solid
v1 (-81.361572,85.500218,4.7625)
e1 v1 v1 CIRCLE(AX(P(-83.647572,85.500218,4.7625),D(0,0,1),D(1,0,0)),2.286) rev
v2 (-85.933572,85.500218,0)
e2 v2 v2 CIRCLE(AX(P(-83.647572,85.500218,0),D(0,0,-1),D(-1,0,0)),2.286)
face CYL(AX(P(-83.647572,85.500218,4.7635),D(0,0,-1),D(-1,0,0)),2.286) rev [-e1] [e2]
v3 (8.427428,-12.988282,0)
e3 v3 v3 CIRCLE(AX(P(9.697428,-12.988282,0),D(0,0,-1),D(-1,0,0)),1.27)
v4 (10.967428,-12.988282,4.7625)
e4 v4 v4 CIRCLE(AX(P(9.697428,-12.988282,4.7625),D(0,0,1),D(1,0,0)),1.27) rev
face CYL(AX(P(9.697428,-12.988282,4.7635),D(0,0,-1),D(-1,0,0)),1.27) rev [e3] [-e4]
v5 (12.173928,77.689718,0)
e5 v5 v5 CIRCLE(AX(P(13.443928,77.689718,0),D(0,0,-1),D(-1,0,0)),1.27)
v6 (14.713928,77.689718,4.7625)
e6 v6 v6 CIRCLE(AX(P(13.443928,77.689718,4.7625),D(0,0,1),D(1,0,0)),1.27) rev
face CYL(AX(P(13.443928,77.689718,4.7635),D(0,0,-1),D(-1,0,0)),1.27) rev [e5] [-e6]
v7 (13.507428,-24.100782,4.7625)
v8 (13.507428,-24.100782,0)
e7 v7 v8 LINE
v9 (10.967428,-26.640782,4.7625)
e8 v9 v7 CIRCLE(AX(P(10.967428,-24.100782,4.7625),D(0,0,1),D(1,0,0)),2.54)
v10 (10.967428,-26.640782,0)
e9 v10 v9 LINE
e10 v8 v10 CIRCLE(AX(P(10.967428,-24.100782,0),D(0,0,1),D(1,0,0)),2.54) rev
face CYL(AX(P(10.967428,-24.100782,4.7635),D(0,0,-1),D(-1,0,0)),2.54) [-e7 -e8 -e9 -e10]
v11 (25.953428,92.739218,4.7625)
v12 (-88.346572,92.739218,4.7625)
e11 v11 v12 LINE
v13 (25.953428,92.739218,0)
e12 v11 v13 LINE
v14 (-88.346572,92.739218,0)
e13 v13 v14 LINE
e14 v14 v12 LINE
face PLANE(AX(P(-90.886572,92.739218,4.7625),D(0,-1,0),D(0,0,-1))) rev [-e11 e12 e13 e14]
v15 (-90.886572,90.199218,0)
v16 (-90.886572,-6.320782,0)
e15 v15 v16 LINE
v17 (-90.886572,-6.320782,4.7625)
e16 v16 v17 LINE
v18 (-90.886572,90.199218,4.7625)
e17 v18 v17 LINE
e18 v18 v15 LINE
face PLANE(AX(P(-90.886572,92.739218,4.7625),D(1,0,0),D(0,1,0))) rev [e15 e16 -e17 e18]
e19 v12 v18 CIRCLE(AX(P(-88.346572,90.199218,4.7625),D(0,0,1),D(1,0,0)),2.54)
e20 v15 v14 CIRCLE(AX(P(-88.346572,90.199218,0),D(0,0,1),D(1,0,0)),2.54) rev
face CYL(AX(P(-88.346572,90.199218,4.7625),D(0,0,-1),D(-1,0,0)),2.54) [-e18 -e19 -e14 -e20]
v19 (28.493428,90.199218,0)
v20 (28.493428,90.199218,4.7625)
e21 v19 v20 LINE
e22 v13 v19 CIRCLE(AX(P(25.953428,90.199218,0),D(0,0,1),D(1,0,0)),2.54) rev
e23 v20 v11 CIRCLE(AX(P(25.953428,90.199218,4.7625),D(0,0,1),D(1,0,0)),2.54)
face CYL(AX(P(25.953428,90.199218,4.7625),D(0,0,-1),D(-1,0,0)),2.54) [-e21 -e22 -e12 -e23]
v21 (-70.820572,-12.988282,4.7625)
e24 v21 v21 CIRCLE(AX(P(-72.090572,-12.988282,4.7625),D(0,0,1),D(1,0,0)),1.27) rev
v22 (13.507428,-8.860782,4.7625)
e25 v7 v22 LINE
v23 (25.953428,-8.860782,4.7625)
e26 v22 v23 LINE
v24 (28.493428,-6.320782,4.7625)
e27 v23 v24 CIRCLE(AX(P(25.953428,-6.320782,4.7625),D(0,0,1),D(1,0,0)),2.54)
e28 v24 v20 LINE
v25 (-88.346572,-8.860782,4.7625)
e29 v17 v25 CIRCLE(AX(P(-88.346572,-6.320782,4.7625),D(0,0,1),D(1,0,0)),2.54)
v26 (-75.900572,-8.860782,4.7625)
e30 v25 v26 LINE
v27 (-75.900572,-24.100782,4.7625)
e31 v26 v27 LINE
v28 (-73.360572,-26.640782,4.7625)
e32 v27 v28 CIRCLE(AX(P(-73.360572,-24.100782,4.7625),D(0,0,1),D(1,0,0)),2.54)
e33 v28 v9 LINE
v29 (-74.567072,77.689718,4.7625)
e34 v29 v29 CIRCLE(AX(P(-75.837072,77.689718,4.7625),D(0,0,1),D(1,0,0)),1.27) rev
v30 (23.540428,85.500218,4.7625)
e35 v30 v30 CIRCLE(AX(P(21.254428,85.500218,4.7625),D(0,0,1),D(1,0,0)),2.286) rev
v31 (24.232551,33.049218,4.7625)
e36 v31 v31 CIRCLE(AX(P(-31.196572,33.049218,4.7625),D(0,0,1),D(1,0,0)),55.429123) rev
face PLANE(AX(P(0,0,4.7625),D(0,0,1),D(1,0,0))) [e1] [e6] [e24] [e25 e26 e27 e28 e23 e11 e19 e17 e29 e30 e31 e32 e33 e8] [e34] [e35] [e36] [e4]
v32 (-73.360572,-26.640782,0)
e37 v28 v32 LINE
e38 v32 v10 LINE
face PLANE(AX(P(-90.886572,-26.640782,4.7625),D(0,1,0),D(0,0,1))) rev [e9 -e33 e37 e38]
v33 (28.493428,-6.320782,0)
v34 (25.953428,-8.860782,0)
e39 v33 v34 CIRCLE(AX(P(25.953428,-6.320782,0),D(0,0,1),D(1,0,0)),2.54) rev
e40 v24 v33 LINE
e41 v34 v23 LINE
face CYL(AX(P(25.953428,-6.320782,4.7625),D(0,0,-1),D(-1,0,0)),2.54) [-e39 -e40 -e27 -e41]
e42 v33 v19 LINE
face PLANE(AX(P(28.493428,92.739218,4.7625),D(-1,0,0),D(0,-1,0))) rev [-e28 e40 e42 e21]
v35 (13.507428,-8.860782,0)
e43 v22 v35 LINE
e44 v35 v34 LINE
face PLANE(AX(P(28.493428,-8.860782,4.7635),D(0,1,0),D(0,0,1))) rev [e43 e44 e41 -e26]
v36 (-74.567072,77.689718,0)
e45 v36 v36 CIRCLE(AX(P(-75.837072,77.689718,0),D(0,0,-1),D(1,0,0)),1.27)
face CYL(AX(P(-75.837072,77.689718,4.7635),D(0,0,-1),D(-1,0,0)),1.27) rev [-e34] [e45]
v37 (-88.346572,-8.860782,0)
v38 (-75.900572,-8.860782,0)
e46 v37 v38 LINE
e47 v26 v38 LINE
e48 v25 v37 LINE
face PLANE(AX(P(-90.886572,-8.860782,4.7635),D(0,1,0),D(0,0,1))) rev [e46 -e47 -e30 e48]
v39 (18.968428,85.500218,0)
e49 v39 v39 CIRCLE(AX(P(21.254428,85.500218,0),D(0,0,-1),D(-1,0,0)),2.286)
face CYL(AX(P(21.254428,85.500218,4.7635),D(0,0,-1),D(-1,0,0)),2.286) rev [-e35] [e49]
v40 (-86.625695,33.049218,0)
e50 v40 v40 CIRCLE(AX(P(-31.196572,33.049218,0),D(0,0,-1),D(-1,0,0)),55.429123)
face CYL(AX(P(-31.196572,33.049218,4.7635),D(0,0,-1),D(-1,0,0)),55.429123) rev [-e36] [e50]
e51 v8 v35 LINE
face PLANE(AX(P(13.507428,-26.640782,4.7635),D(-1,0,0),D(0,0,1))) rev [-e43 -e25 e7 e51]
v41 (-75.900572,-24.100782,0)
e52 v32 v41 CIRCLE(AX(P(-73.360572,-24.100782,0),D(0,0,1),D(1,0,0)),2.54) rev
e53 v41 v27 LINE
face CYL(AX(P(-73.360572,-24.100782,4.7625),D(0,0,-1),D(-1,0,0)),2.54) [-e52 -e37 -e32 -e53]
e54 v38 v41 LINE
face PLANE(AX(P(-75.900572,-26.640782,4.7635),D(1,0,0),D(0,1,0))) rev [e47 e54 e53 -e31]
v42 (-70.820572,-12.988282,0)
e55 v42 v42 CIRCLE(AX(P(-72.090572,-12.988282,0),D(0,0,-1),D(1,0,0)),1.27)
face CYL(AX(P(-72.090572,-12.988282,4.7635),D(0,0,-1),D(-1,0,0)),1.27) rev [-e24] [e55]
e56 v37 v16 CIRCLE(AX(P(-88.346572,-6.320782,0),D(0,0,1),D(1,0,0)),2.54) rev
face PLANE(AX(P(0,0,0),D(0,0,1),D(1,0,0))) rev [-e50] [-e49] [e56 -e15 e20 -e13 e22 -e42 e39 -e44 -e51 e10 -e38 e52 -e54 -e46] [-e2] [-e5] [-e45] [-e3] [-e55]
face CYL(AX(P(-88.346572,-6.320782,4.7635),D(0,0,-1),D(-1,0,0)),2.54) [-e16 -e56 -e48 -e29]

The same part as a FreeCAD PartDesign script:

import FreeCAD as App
import Part
import Sketcher

V = App.Vector
Q = App.Units.Quantity


def edges_at(feature, points):
    """Names of the edges that pass closest to the given points."""
    edges = feature.Shape.Edges
    near = lambda p: min(range(len(edges)), key=lambda i: edges[i].distToShape(Part.Vertex(*p))[0])
    return sorted({f"Edge{near(p) + 1}" for p in points})

doc = App.newDocument("Part")
body = doc.addObject("PartDesign::Body", "Body")

# Sketch on XY plane
sketch1 = body.newObject("Sketcher::SketchObject", "Sketch")
sketch1.AttachmentSupport = (doc.getObject("XY_Plane"), [""])
sketch1.MapMode = "FlatFace"
sketch1.addGeometry([
    Part.LineSegment(V(-91, 93, 0), V(-91, -27, 0)),
    Part.LineSegment(V(-91, -27, 0), V(28, -27, 0)),
    Part.LineSegment(V(28, -27, 0), V(28, 93, 0)),
    Part.LineSegment(V(28, 93, 0), V(-91, 93, 0)),
], False)
sketch1.addConstraint([
    Sketcher.Constraint("Coincident", 0, 2, 1, 1),
    Sketcher.Constraint("Coincident", 1, 2, 2, 1),
    Sketcher.Constraint("Coincident", 2, 2, 3, 1),
    Sketcher.Constraint("Coincident", 3, 2, 0, 1),
    Sketcher.Constraint("Vertical", 0),
    Sketcher.Constraint("Horizontal", 1),
    Sketcher.Constraint("Vertical", 2),
    Sketcher.Constraint("Horizontal", 3),
    Sketcher.Constraint("Equal", 3, 0),
    Sketcher.Constraint("DistanceX", 1, 1, 1, 2, Q("4.7 in")),
    Sketcher.Constraint("DistanceX", 0, 2, -1, 1, 90.886572),
    Sketcher.Constraint("DistanceY", 0, 2, -1, 1, 26.640782),
])
pad1 = body.newObject("PartDesign::Pad", "Pad")
pad1.Profile = sketch1
pad1.Length = Q("0.1875 in")

# Sketch on XY plane
sketch2 = body.newObject("Sketcher::SketchObject", "Sketch001")
sketch2.AttachmentSupport = (doc.getObject("XY_Plane"), [""])
sketch2.MapMode = "FlatFace"
sketch2.addGeometry(Part.Circle(V(21.3, 85.5, 0), V(0, 0, 1), 2.3), False)
sketch2.addConstraint([
    Sketcher.Constraint("Diameter", 0, Q("0.18 in")),
    Sketcher.Constraint("DistanceX", -1, 1, 0, 3, 21.254428),
    Sketcher.Constraint("DistanceY", -1, 1, 0, 3, 85.500218),
])
pocket1 = body.newObject("PartDesign::Pocket", "Pocket")
pocket1.Profile = sketch2
pocket1.Type = "UpToFirst"
pocket1.Reversed = True

# Sketch on XY plane
sketch3 = body.newObject("Sketcher::SketchObject", "Sketch002")
sketch3.AttachmentSupport = (doc.getObject("XY_Plane"), [""])
sketch3.MapMode = "FlatFace"
sketch3.addGeometry(Part.Circle(V(-83.6, 85.5, 0), V(0, 0, 1), 2.3), False)
sketch3.addConstraint([
    Sketcher.Constraint("Diameter", 0, Q("0.18 in")),
    Sketcher.Constraint("DistanceX", 0, 3, -1, 1, 83.647572),
    Sketcher.Constraint("DistanceY", -1, 1, 0, 3, 85.500218),
])
pocket2 = body.newObject("PartDesign::Pocket", "Pocket001")
pocket2.Profile = sketch3
pocket2.Type = "UpToFirst"
pocket2.Reversed = True

# Sketch on XY plane
sketch4 = body.newObject("Sketcher::SketchObject", "Sketch003")
sketch4.AttachmentSupport = (doc.getObject("XY_Plane"), [""])
sketch4.MapMode = "FlatFace"
sketch4.addGeometry(Part.Circle(V(-72.1, -13, 0), V(0, 0, 1), 1.3), False)
sketch4.addConstraint([
    Sketcher.Constraint("Diameter", 0, Q("0.1 in")),
    Sketcher.Constraint("DistanceX", 0, 3, -1, 1, 72.090572),
    Sketcher.Constraint("DistanceY", 0, 3, -1, 1, 12.988282),
])
pocket3 = body.newObject("PartDesign::Pocket", "Pocket002")
pocket3.Profile = sketch4
pocket3.Type = "UpToFirst"
pocket3.Reversed = True

# Sketch on XY plane
sketch5 = body.newObject("Sketcher::SketchObject", "Sketch004")
sketch5.AttachmentSupport = (doc.getObject("XY_Plane"), [""])
sketch5.MapMode = "FlatFace"
sketch5.addGeometry(Part.Circle(V(-31, 33, 0), V(0, 0, 1), 55), False)
sketch5.addConstraint([
    Sketcher.Constraint("Diameter", 0, 110.858245),
    Sketcher.Constraint("DistanceX", 0, 3, -1, 1, 31.196572),
    Sketcher.Constraint("DistanceY", -1, 1, 0, 3, 33.049218),
])
pocket4 = body.newObject("PartDesign::Pocket", "Pocket003")
pocket4.Profile = sketch5
pocket4.Type = "UpToFirst"
pocket4.Reversed = True

# Sketch on XY plane
sketch6 = body.newObject("Sketcher::SketchObject", "Sketch005")
sketch6.AttachmentSupport = (doc.getObject("XY_Plane"), [""])
sketch6.MapMode = "FlatFace"
sketch6.addGeometry(Part.Circle(V(13.4, 77.7, 0), V(0, 0, 1), 1.3), False)
sketch6.addConstraint([
    Sketcher.Constraint("Diameter", 0, Q("0.1 in")),
    Sketcher.Constraint("DistanceX", -1, 1, 0, 3, 13.443928),
    Sketcher.Constraint("DistanceY", -1, 1, 0, 3, 77.689718),
])
pocket5 = body.newObject("PartDesign::Pocket", "Pocket004")
pocket5.Profile = sketch6
pocket5.Type = "UpToFirst"
pocket5.Reversed = True

# Sketch on XY plane
sketch7 = body.newObject("Sketcher::SketchObject", "Sketch006")
sketch7.AttachmentSupport = (doc.getObject("XY_Plane"), [""])
sketch7.MapMode = "FlatFace"
sketch7.addGeometry(Part.Circle(V(-75.8, 77.7, 0), V(0, 0, 1), 1.3), False)
sketch7.addConstraint([
    Sketcher.Constraint("Diameter", 0, Q("0.1 in")),
    Sketcher.Constraint("DistanceX", 0, 3, -1, 1, 75.837072),
    Sketcher.Constraint("DistanceY", -1, 1, 0, 3, 77.689718),
])
pocket6 = body.newObject("PartDesign::Pocket", "Pocket005")
pocket6.Profile = sketch7
pocket6.Type = "UpToFirst"
pocket6.Reversed = True

# Sketch on XY plane
sketch8 = body.newObject("Sketcher::SketchObject", "Sketch007")
sketch8.AttachmentSupport = (doc.getObject("XY_Plane"), [""])
sketch8.MapMode = "FlatFace"
sketch8.addGeometry(Part.Circle(V(9.7, -13, 0), V(0, 0, 1), 1.3), False)
sketch8.addConstraint([
    Sketcher.Constraint("Diameter", 0, Q("0.1 in")),
    Sketcher.Constraint("DistanceX", -1, 1, 0, 3, 9.697428),
    Sketcher.Constraint("DistanceY", 0, 3, -1, 1, 12.988282),
])
pocket7 = body.newObject("PartDesign::Pocket", "Pocket006")
pocket7.Profile = sketch8
pocket7.Type = "UpToFirst"
pocket7.Reversed = True

# Sketch on XY plane
sketch9 = body.newObject("Sketcher::SketchObject", "Sketch008")
sketch9.AttachmentSupport = (doc.getObject("XY_Plane"), [""])
sketch9.MapMode = "FlatFace"
sketch9.addGeometry([
    Part.LineSegment(V(28, -9, 0), V(28, -27, 0)),
    Part.LineSegment(V(28, -27, 0), V(14, -27, 0)),
    Part.LineSegment(V(14, -27, 0), V(14, -9, 0)),
    Part.LineSegment(V(14, -9, 0), V(28, -9, 0)),
], False)
sketch9.addConstraint([
    Sketcher.Constraint("Coincident", 0, 2, 1, 1),
    Sketcher.Constraint("Coincident", 1, 2, 2, 1),
    Sketcher.Constraint("Coincident", 2, 2, 3, 1),
    Sketcher.Constraint("Coincident", 3, 2, 0, 1),
    Sketcher.Constraint("Vertical", 0),
    Sketcher.Constraint("Horizontal", 1),
    Sketcher.Constraint("Vertical", 2),
    Sketcher.Constraint("Horizontal", 3),
    Sketcher.Constraint("DistanceY", 0, 2, 0, 1, Q("0.7 in")),
    Sketcher.Constraint("DistanceX", 1, 2, 1, 1, Q("0.59 in")),
    Sketcher.Constraint("DistanceX", -1, 1, 0, 2, 28.493428),
    Sketcher.Constraint("DistanceY", 0, 2, -1, 1, 26.640782),
])
pocket8 = body.newObject("PartDesign::Pocket", "Pocket007")
pocket8.Profile = sketch9
pocket8.Type = "UpToFirst"
pocket8.Reversed = True

# Sketch on XY plane
sketch10 = body.newObject("Sketcher::SketchObject", "Sketch009")
sketch10.AttachmentSupport = (doc.getObject("XY_Plane"), [""])
sketch10.MapMode = "FlatFace"
sketch10.addGeometry([
    Part.LineSegment(V(-76, -9, 0), V(-76, -27, 0)),
    Part.LineSegment(V(-76, -27, 0), V(-91, -27, 0)),
    Part.LineSegment(V(-91, -27, 0), V(-91, -9, 0)),
    Part.LineSegment(V(-91, -9, 0), V(-76, -9, 0)),
], False)
sketch10.addConstraint([
    Sketcher.Constraint("Coincident", 0, 2, 1, 1),
    Sketcher.Constraint("Coincident", 1, 2, 2, 1),
    Sketcher.Constraint("Coincident", 2, 2, 3, 1),
    Sketcher.Constraint("Coincident", 3, 2, 0, 1),
    Sketcher.Constraint("Vertical", 0),
    Sketcher.Constraint("Horizontal", 1),
    Sketcher.Constraint("Vertical", 2),
    Sketcher.Constraint("Horizontal", 3),
    Sketcher.Constraint("DistanceY", 0, 2, 0, 1, Q("0.7 in")),
    Sketcher.Constraint("DistanceX", 1, 2, 1, 1, Q("0.59 in")),
    Sketcher.Constraint("DistanceX", 0, 2, -1, 1, 75.900572),
    Sketcher.Constraint("DistanceY", 0, 2, -1, 1, 26.640782),
])
pocket9 = body.newObject("PartDesign::Pocket", "Pocket008")
pocket9.Profile = sketch10
pocket9.Type = "UpToFirst"
pocket9.Reversed = True
doc.recompute()

fillet = body.newObject("PartDesign::Fillet", "Fillet")
fillet.Base = (pocket9, edges_at(pocket9, [(-90.887, 92.739, 2.381), (28.493, 92.739, 2.381)]))
fillet.Radius = Q("0.1 in")
doc.recompute()

fillet2 = body.newObject("PartDesign::Fillet", "Fillet001")
fillet2.Base = (fillet, edges_at(fillet, [
    (28.493, -8.861, 2.381),
    (13.507, -26.641, 2.381),
    (-75.901, -26.641, 2.381),
    (-90.887, -8.861, 2.381),
]))
fillet2.Radius = Q("0.1 in")

doc.recompute()
